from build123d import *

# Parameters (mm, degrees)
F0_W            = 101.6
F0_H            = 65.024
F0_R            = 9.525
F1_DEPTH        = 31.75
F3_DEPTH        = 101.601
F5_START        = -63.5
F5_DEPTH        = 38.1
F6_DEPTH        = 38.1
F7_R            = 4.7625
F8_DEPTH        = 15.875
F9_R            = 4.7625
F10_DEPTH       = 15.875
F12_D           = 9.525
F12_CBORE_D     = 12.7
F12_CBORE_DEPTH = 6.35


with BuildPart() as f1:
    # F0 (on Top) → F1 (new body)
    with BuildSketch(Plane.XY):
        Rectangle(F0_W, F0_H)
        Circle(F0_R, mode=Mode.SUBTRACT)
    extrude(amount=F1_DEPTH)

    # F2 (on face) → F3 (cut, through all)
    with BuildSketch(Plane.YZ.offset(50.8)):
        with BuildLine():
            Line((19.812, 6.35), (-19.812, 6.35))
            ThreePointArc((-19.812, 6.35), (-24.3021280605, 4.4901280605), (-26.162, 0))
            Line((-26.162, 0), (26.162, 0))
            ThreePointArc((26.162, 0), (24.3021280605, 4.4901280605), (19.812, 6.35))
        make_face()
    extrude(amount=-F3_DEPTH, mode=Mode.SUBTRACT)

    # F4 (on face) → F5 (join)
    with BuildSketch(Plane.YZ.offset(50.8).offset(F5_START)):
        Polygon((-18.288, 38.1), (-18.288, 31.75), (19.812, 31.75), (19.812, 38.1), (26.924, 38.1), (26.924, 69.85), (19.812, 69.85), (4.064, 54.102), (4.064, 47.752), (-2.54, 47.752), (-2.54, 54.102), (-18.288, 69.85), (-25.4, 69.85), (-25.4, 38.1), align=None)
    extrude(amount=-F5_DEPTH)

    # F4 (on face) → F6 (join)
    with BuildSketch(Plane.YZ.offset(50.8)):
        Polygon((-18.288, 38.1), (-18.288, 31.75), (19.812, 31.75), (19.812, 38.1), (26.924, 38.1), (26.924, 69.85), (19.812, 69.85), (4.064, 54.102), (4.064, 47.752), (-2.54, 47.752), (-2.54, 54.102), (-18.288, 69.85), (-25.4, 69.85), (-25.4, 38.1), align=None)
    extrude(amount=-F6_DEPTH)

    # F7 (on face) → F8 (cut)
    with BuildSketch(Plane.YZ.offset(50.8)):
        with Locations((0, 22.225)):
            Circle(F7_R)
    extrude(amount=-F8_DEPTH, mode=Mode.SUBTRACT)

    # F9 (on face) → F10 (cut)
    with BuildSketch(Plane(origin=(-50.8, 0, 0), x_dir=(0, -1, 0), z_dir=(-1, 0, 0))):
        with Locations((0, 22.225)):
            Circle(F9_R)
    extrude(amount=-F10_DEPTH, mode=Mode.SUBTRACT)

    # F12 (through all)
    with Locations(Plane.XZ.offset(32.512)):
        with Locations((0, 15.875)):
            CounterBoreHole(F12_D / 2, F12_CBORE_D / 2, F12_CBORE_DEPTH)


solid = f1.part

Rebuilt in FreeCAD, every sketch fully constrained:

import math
import FreeCAD as App
import Part
import Sketcher

V = App.Vector
Q = App.Units.Quantity


def add_polygon(sketch, points):
    """Adds a closed chain of lines whose ends are joined by coincident constraints."""
    first, n = sketch.GeometryCount, len(points)
    for a, b in zip(points, points[1:] + points[:1]):
        sketch.addGeometry(Part.LineSegment(App.Vector(*a, 0), App.Vector(*b, 0)), False)
    for i in range(n):
        sketch.addConstraint(Sketcher.Constraint("Coincident", first + i, 2, first + (i + 1) % n, 1))

doc = App.newDocument("Part")
params = doc.addObject("Spreadsheet::Sheet", "Params")
for row, (alias, value) in enumerate([
    ("sketch1_diameter", "0.75 in"),
    ("sketch1_width", "4 in"),
    ("sketch1_height", "2.56 in"),
    ("pad1_length", "1.25 in"),
    ("sketch2_radius", "0.25 in"),
    ("sketch2_width", "1.56 in"),
    ("sketch3_width", "1.5 in"),
    ("sketch3_width2", "0.28 in"),
    ("sketch3_width3", "0.26 in"),
    ("sketch3_height", "0.25 in"),
    ("sketch3_height2", "1.25 in"),
    ("pad2_length", "1.5 in"),
    ("sketch4_width", "1.5 in"),
    ("sketch4_width2", "0.28 in"),
    ("sketch4_width3", "0.26 in"),
    ("sketch4_height", "0.25 in"),
    ("sketch4_height2", "1.25 in"),
    ("pad3_length", "1.5 in"),
    ("sketch5_diameter", "0.375 in"),
    ("pocket2_length", "0.625 in"),
    ("sketch6_diameter", "0.375 in"),
    ("pocket3_length", "0.625 in"),
    ("sketch7_diameter", "0.375 in"),
    ("hole_diameter", "0.375 in"),
    ("hole_cbore_diameter", "0.5 in"),
    ("hole_cbore_depth", "0.25 in"),
], start=1):
    params.set(f"A{row}", alias)
    params.set(f"B{row}", "=" + value)
    params.setAlias(f"B{row}", alias)

body = doc.addObject("PartDesign::Body", "Body")

sketch1 = body.newObject("Sketcher::SketchObject", "Sketch")
sketch1.AttachmentSupport = (doc.getObject("XY_Plane"), [""])
sketch1.MapMode = "FlatFace"
add_polygon(sketch1, [(-50.8, 32.512), (-50.8, -32.512), (50.8, -32.512), (50.8, 32.512)])
sketch1.addGeometry(Part.Circle(V(0, 0, 0), V(0, 0, 1), 9.525), False)
sketch1.addConstraint(Sketcher.Constraint("Vertical", 0))
sketch1.addConstraint(Sketcher.Constraint("Horizontal", 1))
sketch1.addConstraint(Sketcher.Constraint("Vertical", 2))
sketch1.addConstraint(Sketcher.Constraint("Horizontal", 3))
sketch1.addConstraint(Sketcher.Constraint("Coincident", 4, 3, -1, 1))
sketch1.addConstraint(Sketcher.Constraint("Symmetric", 0, 2, 2, 2, -1, 1))
sketch1.addConstraint(Sketcher.Constraint("Diameter", 4, Q("0.75 in")))
sketch1.addConstraint(Sketcher.Constraint("DistanceX", 1, 1, 1, 2, Q("4 in")))
sketch1.addConstraint(Sketcher.Constraint("DistanceY", 0, 2, 0, 1, Q("2.56 in")))
sketch1.setExpression("Constraints[10]", "Params.sketch1_diameter")
sketch1.setExpression("Constraints[11]", "Params.sketch1_width")
sketch1.setExpression("Constraints[12]", "Params.sketch1_height")
pad1 = body.newObject("PartDesign::Pad", "Pad")
pad1.Profile = sketch1
pad1.setExpression("Length", "Params.pad1_length")

sketch2 = body.newObject("Sketcher::SketchObject", "Sketch001")
sketch2.AttachmentSupport = (doc.getObject("YZ_Plane"), [""])
sketch2.MapMode = "FlatFace"
sketch2.AttachmentOffset = App.Placement(V(0, 0, 2 * 25.4), App.Rotation())
sketch2.addGeometry(Part.LineSegment(V(19.812, 6.35, 0), V(-19.812, 6.35, 0)), False)
sketch2.addGeometry(Part.ArcOfCircle(Part.Circle(V(-19.812, 0, 0), V(0, 0, 1), 6.35), math.radians(90), math.radians(180)), False)
sketch2.addGeometry(Part.LineSegment(V(-26.162, 0, 0), V(26.162, 0, 0)), False)
sketch2.addGeometry(Part.ArcOfCircle(Part.Circle(V(19.812, 0, 0), V(0, 0, 1), 6.35), math.radians(0), math.radians(90)), False)
sketch2.addConstraint(Sketcher.Constraint("Tangent", 0, 2, 1, 1))
sketch2.addConstraint(Sketcher.Constraint("Coincident", 1, 2, 2, 1))
sketch2.addConstraint(Sketcher.Constraint("Coincident", 2, 2, 3, 1))
sketch2.addConstraint(Sketcher.Constraint("Tangent", 3, 2, 0, 1))
sketch2.addConstraint(Sketcher.Constraint("Horizontal", 0))
sketch2.addConstraint(Sketcher.Constraint("Horizontal", 2))
sketch2.addConstraint(Sketcher.Constraint("Equal", 1, 3))
sketch2.addConstraint(Sketcher.Constraint("Symmetric", 1, 3, 3, 3, -1, 1))
sketch2.addConstraint(Sketcher.Constraint("PointOnObject", 1, 2, -1))
sketch2.addConstraint(Sketcher.Constraint("Radius", 1, Q("0.25 in")))
sketch2.addConstraint(Sketcher.Constraint("DistanceX", 0, 2, 0, 1, Q("1.56 in")))
sketch2.setExpression("Constraints[9]", "Params.sketch2_radius")
sketch2.setExpression("Constraints[10]", "Params.sketch2_width")
pocket1 = body.newObject("PartDesign::Pocket", "Pocket")
pocket1.Profile = sketch2
pocket1.Type = "ThroughAll"

sketch3 = body.newObject("Sketcher::SketchObject", "Sketch002")
sketch3.AttachmentSupport = (doc.getObject("YZ_Plane"), [""])
sketch3.MapMode = "FlatFace"
sketch3.AttachmentOffset = App.Placement(V(0, 0, -0.5 * 25.4), App.Rotation())
add_polygon(sketch3, [(-18.288, 38.1), (-18.288, 31.75), (19.812, 31.75), (19.812, 38.1), (26.924, 38.1), (26.924, 69.85), (19.812, 69.85), (4.064, 54.102), (4.064, 47.752), (-2.54, 47.752), (-2.54, 54.102), (-18.288, 69.85), (-25.4, 69.85), (-25.4, 38.1)])
sketch3.addConstraint(Sketcher.Constraint("Vertical", 0))
sketch3.addConstraint(Sketcher.Constraint("Horizontal", 1))
sketch3.addConstraint(Sketcher.Constraint("Vertical", 2))
sketch3.addConstraint(Sketcher.Constraint("Horizontal", 3))
sketch3.addConstraint(Sketcher.Constraint("Vertical", 4))
sketch3.addConstraint(Sketcher.Constraint("Horizontal", 5))
sketch3.addConstraint(Sketcher.Constraint("Vertical", 7))
sketch3.addConstraint(Sketcher.Constraint("Horizontal", 8))
sketch3.addConstraint(Sketcher.Constraint("Vertical", 9))
sketch3.addConstraint(Sketcher.Constraint("Horizontal", 11))
sketch3.addConstraint(Sketcher.Constraint("Vertical", 12))
sketch3.addConstraint(Sketcher.Constraint("Horizontal", 13))
sketch3.addConstraint(Sketcher.Constraint("Perpendicular", 6, 10))
sketch3.addConstraint(Sketcher.Constraint("Horizontal", 6, 2, 9, 2))
sketch3.addConstraint(Sketcher.Constraint("Horizontal", 5, 2, 10, 2))
sketch3.addConstraint(Sketcher.Constraint("Horizontal", 3, 2, 12, 2))
sketch3.addConstraint(Sketcher.Constraint("Vertical", 2, 2, 5, 2))
sketch3.addConstraint(Sketcher.Constraint("Vertical", 0, 2, 10, 2))
sketch3.addConstraint(Sketcher.Constraint("Equal", 5, 11))
sketch3.addConstraint(Sketcher.Constraint("Equal", 2, 7))
sketch3.addConstraint(Sketcher.Constraint("Equal", 6, 10))
sketch3.addConstraint(Sketcher.Constraint("DistanceX", 1, 1, 1, 2, Q("1.5 in")))
sketch3.addConstraint(Sketcher.Constraint("DistanceX", 11, 2, -1, 1, Q("1 in")))
sketch3.addConstraint(Sketcher.Constraint("DistanceX", 3, 1, 3, 2, Q("0.28 in")))
sketch3.addConstraint(Sketcher.Constraint("DistanceX", 8, 2, 8, 1, Q("0.26 in")))
sketch3.addConstraint(Sketcher.Constraint("DistanceY", 0, 2, 0, 1, Q("0.25 in")))
sketch3.addConstraint(Sketcher.Constraint("DistanceY", 4, 1, 4, 2, Q("1.25 in")))
sketch3.addConstraint(Sketcher.Constraint("DistanceY", -1, 1, 2, 2, Q("1.5 in")))
sketch3.setExpression("Constraints[35]", "Params.sketch3_width")
sketch3.setExpression("Constraints[37]", "Params.sketch3_width2")
sketch3.setExpression("Constraints[38]", "Params.sketch3_width3")
sketch3.setExpression("Constraints[39]", "Params.sketch3_height")
sketch3.setExpression("Constraints[40]", "Params.sketch3_height2")
pad2 = body.newObject("PartDesign::Pad", "Pad001")
pad2.Profile = sketch3
pad2.setExpression("Length", "Params.pad2_length")
pad2.Reversed = True

sketch4 = body.newObject("Sketcher::SketchObject", "Sketch003")
sketch4.AttachmentSupport = (doc.getObject("YZ_Plane"), [""])
sketch4.MapMode = "FlatFace"
sketch4.AttachmentOffset = App.Placement(V(0, 0, 2 * 25.4), App.Rotation())
add_polygon(sketch4, [(-18.288, 38.1), (-18.288, 31.75), (19.812, 31.75), (19.812, 38.1), (26.924, 38.1), (26.924, 69.85), (19.812, 69.85), (4.064, 54.102), (4.064, 47.752), (-2.54, 47.752), (-2.54, 54.102), (-18.288, 69.85), (-25.4, 69.85), (-25.4, 38.1)])
sketch4.addConstraint(Sketcher.Constraint("Vertical", 0))
sketch4.addConstraint(Sketcher.Constraint("Horizontal", 1))
sketch4.addConstraint(Sketcher.Constraint("Vertical", 2))
sketch4.addConstraint(Sketcher.Constraint("Horizontal", 3))
sketch4.addConstraint(Sketcher.Constraint("Vertical", 4))
sketch4.addConstraint(Sketcher.Constraint("Horizontal", 5))
sketch4.addConstraint(Sketcher.Constraint("Vertical", 7))
sketch4.addConstraint(Sketcher.Constraint("Horizontal", 8))
sketch4.addConstraint(Sketcher.Constraint("Vertical", 9))
sketch4.addConstraint(Sketcher.Constraint("Horizontal", 11))
sketch4.addConstraint(Sketcher.Constraint("Vertical", 12))
sketch4.addConstraint(Sketcher.Constraint("Horizontal", 13))
sketch4.addConstraint(Sketcher.Constraint("Perpendicular", 6, 10))
sketch4.addConstraint(Sketcher.Constraint("Horizontal", 6, 2, 9, 2))
sketch4.addConstraint(Sketcher.Constraint("Horizontal", 5, 2, 10, 2))
sketch4.addConstraint(Sketcher.Constraint("Horizontal", 3, 2, 12, 2))
sketch4.addConstraint(Sketcher.Constraint("Vertical", 2, 2, 5, 2))
sketch4.addConstraint(Sketcher.Constraint("Vertical", 0, 2, 10, 2))
sketch4.addConstraint(Sketcher.Constraint("Equal", 5, 11))
sketch4.addConstraint(Sketcher.Constraint("Equal", 2, 7))
sketch4.addConstraint(Sketcher.Constraint("Equal", 6, 10))
sketch4.addConstraint(Sketcher.Constraint("DistanceX", 1, 1, 1, 2, Q("1.5 in")))
sketch4.addConstraint(Sketcher.Constraint("DistanceX", 11, 2, -1, 1, Q("1 in")))
sketch4.addConstraint(Sketcher.Constraint("DistanceX", 3, 1, 3, 2, Q("0.28 in")))
sketch4.addConstraint(Sketcher.Constraint("DistanceX", 8, 2, 8, 1, Q("0.26 in")))
sketch4.addConstraint(Sketcher.Constraint("DistanceY", 0, 2, 0, 1, Q("0.25 in")))
sketch4.addConstraint(Sketcher.Constraint("DistanceY", 4, 1, 4, 2, Q("1.25 in")))
sketch4.addConstraint(Sketcher.Constraint("DistanceY", -1, 1, 2, 2, Q("1.5 in")))
sketch4.setExpression("Constraints[35]", "Params.sketch4_width")
sketch4.setExpression("Constraints[37]", "Params.sketch4_width2")
sketch4.setExpression("Constraints[38]", "Params.sketch4_width3")
sketch4.setExpression("Constraints[39]", "Params.sketch4_height")
sketch4.setExpression("Constraints[40]", "Params.sketch4_height2")
pad3 = body.newObject("PartDesign::Pad", "Pad002")
pad3.Profile = sketch4
pad3.setExpression("Length", "Params.pad3_length")
pad3.Reversed = True

sketch5 = body.newObject("Sketcher::SketchObject", "Sketch004")
sketch5.AttachmentSupport = (doc.getObject("YZ_Plane"), [""])
sketch5.MapMode = "FlatFace"
sketch5.AttachmentOffset = App.Placement(V(0, 0, 2 * 25.4), App.Rotation())
sketch5.addGeometry(Part.Circle(V(0, 22.225, 0), V(0, 0, 1), 4.7625), False)
sketch5.addConstraint(Sketcher.Constraint("PointOnObject", 0, 3, -2))
sketch5.addConstraint(Sketcher.Constraint("Diameter", 0, Q("0.375 in")))
sketch5.addConstraint(Sketcher.Constraint("DistanceY", -1, 1, 0, 3, Q("0.875 in")))
sketch5.setExpression("Constraints[1]", "Params.sketch5_diameter")
pocket2 = body.newObject("PartDesign::Pocket", "Pocket001")
pocket2.Profile = sketch5
pocket2.setExpression("Length", "Params.pocket2_length")

sketch6 = body.newObject("Sketcher::SketchObject", "Sketch005")
sketch6.AttachmentSupport = (doc.getObject("YZ_Plane"), [""])
sketch6.MapMode = "FlatFace"
sketch6.AttachmentOffset = App.Placement(V(0, 0, -2 * 25.4), App.Rotation())
sketch6.addGeometry(Part.Circle(V(0, 22.225, 0), V(0, 0, 1), 4.7625), False)
sketch6.addConstraint(Sketcher.Constraint("PointOnObject", 0, 3, -2))
sketch6.addConstraint(Sketcher.Constraint("Diameter", 0, Q("0.375 in")))
sketch6.addConstraint(Sketcher.Constraint("DistanceY", -1, 1, 0, 3, Q("0.875 in")))
sketch6.setExpression("Constraints[1]", "Params.sketch6_diameter")
pocket3 = body.newObject("PartDesign::Pocket", "Pocket002")
pocket3.Profile = sketch6
pocket3.setExpression("Length", "Params.pocket3_length")
pocket3.Reversed = True

sketch7 = body.newObject("Sketcher::SketchObject", "Sketch006")
sketch7.AttachmentSupport = (doc.getObject("XZ_Plane"), [""])
sketch7.MapMode = "FlatFace"
sketch7.AttachmentOffset = App.Placement(V(0, 0, 1.28 * 25.4), App.Rotation())
sketch7.addGeometry(Part.Circle(V(0, 15.875, 0), V(0, 0, 1), 4.7625), False)
sketch7.addConstraint(Sketcher.Constraint("PointOnObject", 0, 3, -2))
sketch7.addConstraint(Sketcher.Constraint("Diameter", 0, Q("0.375 in")))
sketch7.addConstraint(Sketcher.Constraint("DistanceY", -1, 1, 0, 3, Q("0.625 in")))
sketch7.setExpression("Constraints[1]", "Params.sketch7_diameter")
doc.recompute()
hole = body.newObject("PartDesign::Hole", "Hole")
hole.Profile = sketch7
hole.ThreadType = "None"
hole.setExpression("Diameter", "Params.hole_diameter")
hole.DepthType = "ThroughAll"
hole.HoleCutType = "Counterbore"
hole.setExpression("HoleCutDiameter", "Params.hole_cbore_diameter")
hole.setExpression("HoleCutDepth", "Params.hole_cbore_depth")

doc.recompute()
